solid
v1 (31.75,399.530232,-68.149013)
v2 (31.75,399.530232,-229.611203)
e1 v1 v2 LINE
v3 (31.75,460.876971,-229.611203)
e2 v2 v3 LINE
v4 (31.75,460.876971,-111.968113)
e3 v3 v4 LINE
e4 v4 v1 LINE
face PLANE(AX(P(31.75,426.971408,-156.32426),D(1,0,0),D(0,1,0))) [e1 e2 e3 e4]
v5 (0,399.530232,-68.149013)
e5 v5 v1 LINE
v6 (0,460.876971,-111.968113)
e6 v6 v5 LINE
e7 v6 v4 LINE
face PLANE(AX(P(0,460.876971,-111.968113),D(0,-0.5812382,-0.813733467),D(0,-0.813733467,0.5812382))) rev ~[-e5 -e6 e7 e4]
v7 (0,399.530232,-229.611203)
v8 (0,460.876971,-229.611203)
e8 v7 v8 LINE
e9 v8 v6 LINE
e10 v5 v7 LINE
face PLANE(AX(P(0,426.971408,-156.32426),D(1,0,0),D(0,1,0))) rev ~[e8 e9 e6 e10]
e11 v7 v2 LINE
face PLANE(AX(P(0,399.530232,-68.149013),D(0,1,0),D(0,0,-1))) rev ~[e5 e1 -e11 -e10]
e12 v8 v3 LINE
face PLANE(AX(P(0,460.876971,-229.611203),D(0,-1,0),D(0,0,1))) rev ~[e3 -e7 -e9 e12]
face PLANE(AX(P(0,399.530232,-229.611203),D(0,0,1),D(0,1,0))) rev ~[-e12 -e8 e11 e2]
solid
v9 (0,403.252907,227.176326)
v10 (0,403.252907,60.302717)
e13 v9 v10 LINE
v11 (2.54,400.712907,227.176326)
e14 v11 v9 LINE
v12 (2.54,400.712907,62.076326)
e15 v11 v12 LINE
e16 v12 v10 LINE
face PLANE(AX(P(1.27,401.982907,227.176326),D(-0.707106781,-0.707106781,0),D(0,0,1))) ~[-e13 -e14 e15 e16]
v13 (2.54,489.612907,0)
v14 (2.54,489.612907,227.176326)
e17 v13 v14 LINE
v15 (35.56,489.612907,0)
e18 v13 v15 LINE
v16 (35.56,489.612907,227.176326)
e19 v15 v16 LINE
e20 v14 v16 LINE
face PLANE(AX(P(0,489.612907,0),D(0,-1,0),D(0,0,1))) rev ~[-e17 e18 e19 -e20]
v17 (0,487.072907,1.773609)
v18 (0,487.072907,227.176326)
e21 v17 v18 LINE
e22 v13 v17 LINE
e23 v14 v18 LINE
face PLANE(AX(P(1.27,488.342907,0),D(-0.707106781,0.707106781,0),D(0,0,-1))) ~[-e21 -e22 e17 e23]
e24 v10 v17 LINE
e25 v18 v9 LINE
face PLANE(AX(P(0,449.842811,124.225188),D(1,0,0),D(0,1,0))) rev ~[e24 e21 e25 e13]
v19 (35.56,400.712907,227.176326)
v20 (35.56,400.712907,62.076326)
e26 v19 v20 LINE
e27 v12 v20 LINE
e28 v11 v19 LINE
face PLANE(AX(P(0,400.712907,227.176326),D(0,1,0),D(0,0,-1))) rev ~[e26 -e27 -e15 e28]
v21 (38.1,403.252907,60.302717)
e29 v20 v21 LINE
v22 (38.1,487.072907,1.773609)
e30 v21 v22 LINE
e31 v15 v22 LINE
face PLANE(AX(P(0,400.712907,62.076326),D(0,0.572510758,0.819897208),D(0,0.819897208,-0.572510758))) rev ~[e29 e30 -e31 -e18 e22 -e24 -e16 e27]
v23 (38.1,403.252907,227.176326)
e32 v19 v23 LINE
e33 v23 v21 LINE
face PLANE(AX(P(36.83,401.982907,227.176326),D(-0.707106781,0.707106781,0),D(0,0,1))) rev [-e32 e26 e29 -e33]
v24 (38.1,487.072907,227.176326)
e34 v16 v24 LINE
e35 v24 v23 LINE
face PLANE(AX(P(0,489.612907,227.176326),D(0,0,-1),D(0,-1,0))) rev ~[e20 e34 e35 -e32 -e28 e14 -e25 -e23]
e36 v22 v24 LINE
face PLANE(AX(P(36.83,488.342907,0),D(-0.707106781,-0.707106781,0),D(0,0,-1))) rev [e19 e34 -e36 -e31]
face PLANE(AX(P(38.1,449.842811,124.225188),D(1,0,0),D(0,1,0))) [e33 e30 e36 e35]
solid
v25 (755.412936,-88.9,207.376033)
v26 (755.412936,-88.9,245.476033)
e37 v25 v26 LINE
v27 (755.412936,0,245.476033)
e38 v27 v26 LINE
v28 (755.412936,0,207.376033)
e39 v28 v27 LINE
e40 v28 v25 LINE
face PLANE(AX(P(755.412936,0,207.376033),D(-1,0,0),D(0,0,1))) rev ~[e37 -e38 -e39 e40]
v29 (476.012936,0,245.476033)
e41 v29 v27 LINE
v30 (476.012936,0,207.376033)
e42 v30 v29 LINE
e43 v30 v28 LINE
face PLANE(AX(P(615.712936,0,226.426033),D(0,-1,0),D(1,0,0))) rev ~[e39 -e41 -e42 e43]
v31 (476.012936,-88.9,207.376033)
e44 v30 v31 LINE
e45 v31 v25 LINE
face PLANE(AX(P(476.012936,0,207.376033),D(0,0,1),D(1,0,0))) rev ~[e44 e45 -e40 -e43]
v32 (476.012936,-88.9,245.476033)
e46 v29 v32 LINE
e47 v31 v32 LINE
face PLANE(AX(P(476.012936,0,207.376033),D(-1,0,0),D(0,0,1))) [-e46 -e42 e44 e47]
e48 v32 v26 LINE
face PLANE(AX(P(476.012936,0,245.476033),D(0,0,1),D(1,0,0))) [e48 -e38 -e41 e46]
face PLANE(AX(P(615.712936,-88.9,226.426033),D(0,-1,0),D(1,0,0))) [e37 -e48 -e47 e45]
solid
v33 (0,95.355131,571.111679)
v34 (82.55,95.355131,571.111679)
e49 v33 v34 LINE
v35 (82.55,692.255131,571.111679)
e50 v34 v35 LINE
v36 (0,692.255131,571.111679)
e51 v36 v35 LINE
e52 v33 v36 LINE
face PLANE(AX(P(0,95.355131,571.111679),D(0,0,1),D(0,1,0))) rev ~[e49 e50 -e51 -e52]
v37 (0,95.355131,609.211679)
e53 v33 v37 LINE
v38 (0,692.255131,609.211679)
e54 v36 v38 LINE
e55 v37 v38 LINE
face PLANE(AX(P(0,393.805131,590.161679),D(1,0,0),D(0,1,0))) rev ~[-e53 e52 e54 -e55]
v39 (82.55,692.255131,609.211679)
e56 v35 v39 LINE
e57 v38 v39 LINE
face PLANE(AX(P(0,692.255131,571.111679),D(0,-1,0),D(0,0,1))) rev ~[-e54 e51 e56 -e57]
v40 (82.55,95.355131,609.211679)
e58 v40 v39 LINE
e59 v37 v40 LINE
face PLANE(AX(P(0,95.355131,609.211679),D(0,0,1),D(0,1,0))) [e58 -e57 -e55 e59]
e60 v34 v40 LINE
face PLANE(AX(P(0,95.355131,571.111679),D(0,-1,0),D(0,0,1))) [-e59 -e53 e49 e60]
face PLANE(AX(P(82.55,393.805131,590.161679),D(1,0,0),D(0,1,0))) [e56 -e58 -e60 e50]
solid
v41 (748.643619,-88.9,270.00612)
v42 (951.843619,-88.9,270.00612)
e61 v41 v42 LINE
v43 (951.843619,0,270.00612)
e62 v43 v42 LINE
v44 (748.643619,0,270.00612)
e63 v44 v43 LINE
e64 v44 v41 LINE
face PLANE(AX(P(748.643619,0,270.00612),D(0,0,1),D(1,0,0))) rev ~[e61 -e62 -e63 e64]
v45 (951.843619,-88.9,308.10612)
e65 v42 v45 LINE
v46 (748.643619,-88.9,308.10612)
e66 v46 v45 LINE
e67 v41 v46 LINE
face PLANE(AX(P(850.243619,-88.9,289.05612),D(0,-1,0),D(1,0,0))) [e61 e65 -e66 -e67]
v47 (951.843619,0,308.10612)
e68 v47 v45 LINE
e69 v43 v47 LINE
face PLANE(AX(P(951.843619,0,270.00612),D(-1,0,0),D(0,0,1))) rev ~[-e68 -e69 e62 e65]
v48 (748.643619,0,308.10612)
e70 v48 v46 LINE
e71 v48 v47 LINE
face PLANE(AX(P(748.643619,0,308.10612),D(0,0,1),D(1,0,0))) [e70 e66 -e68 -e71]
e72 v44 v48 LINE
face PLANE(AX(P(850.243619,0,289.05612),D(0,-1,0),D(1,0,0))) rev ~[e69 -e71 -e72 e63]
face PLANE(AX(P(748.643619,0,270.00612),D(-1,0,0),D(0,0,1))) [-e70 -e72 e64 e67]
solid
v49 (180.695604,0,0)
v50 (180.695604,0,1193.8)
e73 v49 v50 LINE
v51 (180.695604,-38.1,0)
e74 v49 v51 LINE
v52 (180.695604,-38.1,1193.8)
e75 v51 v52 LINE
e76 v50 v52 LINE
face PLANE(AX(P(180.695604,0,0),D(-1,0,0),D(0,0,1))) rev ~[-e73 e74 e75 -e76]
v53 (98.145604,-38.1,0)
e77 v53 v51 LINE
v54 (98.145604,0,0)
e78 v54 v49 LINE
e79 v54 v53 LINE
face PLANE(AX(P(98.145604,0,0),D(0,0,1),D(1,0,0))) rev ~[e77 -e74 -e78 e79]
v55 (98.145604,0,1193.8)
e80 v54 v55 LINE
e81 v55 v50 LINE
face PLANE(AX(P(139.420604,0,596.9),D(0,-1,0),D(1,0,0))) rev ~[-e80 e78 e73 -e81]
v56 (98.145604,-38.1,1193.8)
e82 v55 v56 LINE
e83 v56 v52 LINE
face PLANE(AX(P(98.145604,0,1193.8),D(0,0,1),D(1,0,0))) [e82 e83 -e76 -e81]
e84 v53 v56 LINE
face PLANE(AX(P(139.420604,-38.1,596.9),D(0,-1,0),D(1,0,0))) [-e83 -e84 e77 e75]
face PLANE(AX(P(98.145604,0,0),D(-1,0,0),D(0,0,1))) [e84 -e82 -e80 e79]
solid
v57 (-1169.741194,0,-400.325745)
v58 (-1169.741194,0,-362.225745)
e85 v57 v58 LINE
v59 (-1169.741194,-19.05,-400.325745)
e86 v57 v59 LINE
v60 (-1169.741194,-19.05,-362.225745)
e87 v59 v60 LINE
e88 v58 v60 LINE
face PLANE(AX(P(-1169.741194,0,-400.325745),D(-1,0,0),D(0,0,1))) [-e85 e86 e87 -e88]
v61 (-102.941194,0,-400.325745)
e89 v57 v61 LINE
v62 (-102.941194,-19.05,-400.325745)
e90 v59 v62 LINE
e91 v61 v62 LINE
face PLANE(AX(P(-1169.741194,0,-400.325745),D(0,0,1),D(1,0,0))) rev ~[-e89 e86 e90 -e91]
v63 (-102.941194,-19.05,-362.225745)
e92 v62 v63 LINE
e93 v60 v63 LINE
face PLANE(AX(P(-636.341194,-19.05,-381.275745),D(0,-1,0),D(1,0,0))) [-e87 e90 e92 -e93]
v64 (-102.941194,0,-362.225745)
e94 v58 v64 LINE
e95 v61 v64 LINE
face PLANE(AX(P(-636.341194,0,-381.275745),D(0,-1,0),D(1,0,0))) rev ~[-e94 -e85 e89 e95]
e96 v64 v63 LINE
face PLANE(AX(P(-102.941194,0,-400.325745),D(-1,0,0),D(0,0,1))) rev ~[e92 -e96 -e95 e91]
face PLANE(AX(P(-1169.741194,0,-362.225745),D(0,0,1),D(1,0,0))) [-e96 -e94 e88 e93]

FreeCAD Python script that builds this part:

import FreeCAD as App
import Part
import Sketcher

V = App.Vector
Q = App.Units.Quantity


def edges_at(feature, points):
    """Names of the edges that pass closest to the given points."""
    edges = feature.Shape.Edges
    near = lambda p: min(range(len(edges)), key=lambda i: edges[i].distToShape(Part.Vertex(*p))[0])
    return sorted({f"Edge{near(p) + 1}" for p in points})


def add_polygon(sketch, points):
    """Adds a closed chain of lines whose ends are joined by coincident constraints."""
    first, n = sketch.GeometryCount, len(points)
    for a, b in zip(points, points[1:] + points[:1]):
        sketch.addGeometry(Part.LineSegment(App.Vector(*a, 0), App.Vector(*b, 0)), False)
    for i in range(n):
        sketch.addConstraint(Sketcher.Constraint("Coincident", first + i, 2, first + (i + 1) % n, 1))

doc = App.newDocument("Part")
body = doc.addObject("PartDesign::Body", "Body")

# Sketch on XZ plane
sketch1 = doc.addObject("Sketcher::SketchObject", "Sketch")
body.addObject(sketch1)
sketch1.AttachmentSupport = (doc.XZ_Plane, [""])
sketch1.MapMode = "FlatFace"
add_polygon(sketch1, [(0, 254), (0, 0), (88.9, 0), (88.9, 254)])  # lines 0-3
sketch1.addConstraint(Sketcher.Constraint("Vertical", 0))
sketch1.addConstraint(Sketcher.Constraint("Horizontal", 1))
sketch1.addConstraint(Sketcher.Constraint("Vertical", 2))
sketch1.addConstraint(Sketcher.Constraint("Horizontal", 3))
sketch1.addConstraint(Sketcher.Constraint("Coincident", 0, 2, -1, 1))
sketch1.addConstraint(Sketcher.Constraint("DistanceY", 0, 2, 0, 1, Q("10 in")))
sketch1.addConstraint(Sketcher.Constraint("DistanceX", 1, 1, 1, 2, Q("3.5 in")))
pad1 = doc.addObject("PartDesign::Pad", "Pad")
body.addObject(pad1)
pad1.Profile = sketch1
pad1.Length = Q("1.5 in")
doc.recompute()

fillet = doc.addObject("PartDesign::Fillet", "Fillet")
body.addObject(fillet)
fillet.Base = (pad1, edges_at(pad1, [
    (0, 0, 127),
    (0, -38.1, 127),
    (88.9, -38.1, 127),
    (88.9, 0, 127),
]))
fillet.Radius = Q("0.1 in")
body2 = doc.addObject("PartDesign::Body", "Body001")

# Sketch on XZ plane
sketch2 = doc.addObject("Sketcher::SketchObject", "Sketch001")
body2.addObject(sketch2)
sketch2.AttachmentSupport = (doc.getObject("XZ_Plane001"), [""])
sketch2.MapMode = "FlatFace"
add_polygon(sketch2, [(98.145604, 1193.8), (98.145604, 0), (180.695604, 0), (180.695604, 1193.8)])  # lines 0-3
sketch2.addConstraint(Sketcher.Constraint("Vertical", 0))
sketch2.addConstraint(Sketcher.Constraint("Horizontal", 1))
sketch2.addConstraint(Sketcher.Constraint("Vertical", 2))
sketch2.addConstraint(Sketcher.Constraint("Horizontal", 3))
sketch2.addConstraint(Sketcher.Constraint("PointOnObject", 0, 2, -1))
sketch2.addConstraint(Sketcher.Constraint("DistanceY", 0, 2, 0, 1, Q("47 in")))
sketch2.addConstraint(Sketcher.Constraint("DistanceX", 1, 1, 1, 2, Q("3.25 in")))
sketch2.addConstraint(Sketcher.Constraint("DistanceX", -1, 1, 0, 2, Q("3.8640002 in")))
pad2 = doc.addObject("PartDesign::Pad", "Pad001")
body2.addObject(pad2)
pad2.Profile = sketch2
pad2.Length = Q("1.5 in")
body3 = doc.addObject("PartDesign::Body", "Body002")

# Sketch on YZ plane
sketch3 = doc.addObject("Sketcher::SketchObject", "Sketch002")
body3.addObject(sketch3)
sketch3.AttachmentSupport = (doc.getObject("YZ_Plane002"), [""])
sketch3.MapMode = "FlatFace"
add_polygon(sketch3, [(459.739979, 298.644233), (421.639979, 298.644233), (421.639979, 82.744233), (459.739979, 44.644233)])  # lines 0-3
sketch3.addConstraint(Sketcher.Constraint("Horizontal", 0))
sketch3.addConstraint(Sketcher.Constraint("Vertical", 1))
sketch3.addConstraint(Sketcher.Constraint("Vertical", 3))
sketch3.addConstraint(Sketcher.Constraint("DistanceY", 3, 1, 3, 2, Q("10 in")))
sketch3.addConstraint(Sketcher.Constraint("DistanceX", 0, 2, 0, 1, Q("1.5 in")))
sketch3.addConstraint(Sketcher.Constraint("DistanceY", 1, 2, 1, 1, Q("8.5 in")))
sketch3.addConstraint(Sketcher.Constraint("DistanceX", -1, 1, 0, 2, Q("421.639979 mm")))
sketch3.addConstraint(Sketcher.Constraint("DistanceY", -1, 1, 0, 2, Q("298.644233 mm")))
pad3 = doc.addObject("PartDesign::Pad", "Pad002")
body3.addObject(pad3)
pad3.Profile = sketch3
pad3.Length = Q("3.5 in")
doc.recompute()

fillet2 = doc.addObject("PartDesign::Fillet", "Fillet001")
body3.addObject(fillet2)
fillet2.Base = (pad3, edges_at(pad3, [
    (88.9, 421.64, 190.694),
    (88.9, 459.74, 171.644),
    (0, 421.64, 190.694),
    (0, 459.74, 171.644),
]))
fillet2.Radius = Q("0.1 in")
body4 = doc.addObject("PartDesign::Body", "Body003")

# Sketch on YZ plane
sketch4 = doc.addObject("Sketcher::SketchObject", "Sketch003")
body4.addObject(sketch4)
sketch4.AttachmentSupport = (doc.getObject("YZ_Plane003"), [""])
sketch4.MapMode = "FlatFace"
add_polygon(sketch4, [(427.989934, -1.270004), (427.989934, -255.270004), (466.089934, -255.270004), (466.089934, -39.370004)])  # lines 0-3
sketch4.addConstraint(Sketcher.Constraint("Vertical", 0))
sketch4.addConstraint(Sketcher.Constraint("Horizontal", 1))
sketch4.addConstraint(Sketcher.Constraint("Vertical", 2))
sketch4.addConstraint(Sketcher.Constraint("DistanceY", 0, 2, 0, 1, Q("10 in")))
sketch4.addConstraint(Sketcher.Constraint("DistanceX", 1, 1, 1, 2, Q("1.5 in")))
sketch4.addConstraint(Sketcher.Constraint("DistanceY", 2, 1, 2, 2, Q("8.5 in")))
sketch4.addConstraint(Sketcher.Constraint("DistanceY", 0, 2, -1, 1, Q("10.0500002 in")))
sketch4.addConstraint(Sketcher.Constraint("DistanceX", -1, 1, 0, 2, Q("427.989934 mm")))
pad4 = doc.addObject("PartDesign::Pad", "Pad003")
body4.addObject(pad4)
pad4.Profile = sketch4
pad4.Length = Q("3.5 in")
doc.recompute()

fillet3 = doc.addObject("PartDesign::Fillet", "Fillet002")
body4.addObject(fillet3)
fillet3.Base = (pad4, edges_at(pad4, [
    (0, 427.99, -128.27),
    (88.9, 427.99, -128.27),
    (88.9, 466.09, -147.32),
    (0, 466.09, -147.32),
]))
fillet3.Radius = Q("0.1 in")
body5 = doc.addObject("PartDesign::Body", "Body004")

# Sketch on YZ plane
sketch5 = doc.addObject("Sketcher::SketchObject", "Sketch004")
body5.addObject(sketch5)
sketch5.AttachmentSupport = (doc.getObject("YZ_Plane004"), [""])
sketch5.MapMode = "FlatFace"
add_polygon(sketch5, [(489.612907, 0), (489.612907, 227.176326), (400.712907, 227.176326), (400.712907, 62.076326)])  # lines 0-3
sketch5.addConstraint(Sketcher.Constraint("Vertical", 0))
sketch5.addConstraint(Sketcher.Constraint("Horizontal", 1))
sketch5.addConstraint(Sketcher.Constraint("Vertical", 2))
sketch5.addConstraint(Sketcher.Constraint("PointOnObject", 3, 2, -1))
sketch5.addConstraint(Sketcher.Constraint("DistanceX", 1, 2, 1, 1, Q("3.5 in")))
sketch5.addConstraint(Sketcher.Constraint("DistanceY", 2, 2, 2, 1, Q("6.5 in")))
sketch5.addConstraint(Sketcher.Constraint("DistanceY", 0, 1, 0, 2, Q("227.176326 mm")))
sketch5.addConstraint(Sketcher.Constraint("DistanceX", -1, 1, 0, 2, Q("489.612907 mm")))
pad5 = doc.addObject("PartDesign::Pad", "Pad004")
body5.addObject(pad5)
pad5.Profile = sketch5
pad5.Length = Q("1.5 in")
doc.recompute()

chamfer = doc.addObject("PartDesign::Chamfer", "Chamfer")
body5.addObject(chamfer)
chamfer.Base = (pad5, edges_at(pad5, [
    (38.1, 400.713, 144.626),
    (38.1, 489.613, 113.588),
    (0, 489.613, 113.588),
    (0, 400.713, 144.626),
]))
chamfer.Size = Q("0.1 in")
body6 = doc.addObject("PartDesign::Body", "Body005")

# Sketch on YZ plane
sketch6 = doc.addObject("Sketcher::SketchObject", "Sketch005")
body6.addObject(sketch6)
sketch6.AttachmentSupport = (doc.getObject("YZ_Plane005"), [""])
sketch6.MapMode = "FlatFace"
add_polygon(sketch6, [(374.346435, 712.469995), (374.346435, 547.369957), (463.246435, 547.369957), (463.246435, 775.969957)])  # lines 0-3
sketch6.addConstraint(Sketcher.Constraint("Vertical", 0))
sketch6.addConstraint(Sketcher.Constraint("Horizontal", 1))
sketch6.addConstraint(Sketcher.Constraint("Vertical", 2))
sketch6.addConstraint(Sketcher.Constraint("DistanceY", 2, 1, 2, 2, Q("9 in")))
sketch6.addConstraint(Sketcher.Constraint("DistanceX", 1, 1, 1, 2, Q("3.5 in")))
sketch6.addConstraint(Sketcher.Constraint("DistanceY", -1, 1, 3, 2, Q("28.0499998 in")))
sketch6.addConstraint(Sketcher.Constraint("DistanceY", 0, 2, 0, 1, Q("165.100038 mm")))
sketch6.addConstraint(Sketcher.Constraint("DistanceX", -1, 1, 0, 2, Q("374.346435 mm")))
pad6 = doc.addObject("PartDesign::Pad", "Pad005")
body6.addObject(pad6)
pad6.Profile = sketch6
pad6.Length = Q("1.5 in")
doc.recompute()

chamfer2 = doc.addObject("PartDesign::Chamfer", "Chamfer001")
body6.addObject(chamfer2)
chamfer2.Base = (pad6, edges_at(pad6, [
    (0, 374.346, 629.92),
    (38.1, 374.346, 629.92),
    (38.1, 463.246, 661.67),
    (0, 463.246, 661.67),
]))
chamfer2.Size = Q("0.1 in")
body7 = doc.addObject("PartDesign::Body", "Body006")

# Sketch on YZ plane
sketch7 = doc.addObject("Sketcher::SketchObject", "Sketch006")
body7.addObject(sketch7)
sketch7.AttachmentSupport = (doc.getObject("YZ_Plane006"), [""])
sketch7.MapMode = "FlatFace"
add_polygon(sketch7, [(460.876971, -111.968113), (399.530232, -68.149013), (399.530232, -229.611203), (460.876971, -229.611203)])  # lines 0-3
sketch7.addConstraint(Sketcher.Constraint("Vertical", 1))
sketch7.addConstraint(Sketcher.Constraint("Horizontal", 2))
sketch7.addConstraint(Sketcher.Constraint("Vertical", 3))
sketch7.addConstraint(Sketcher.Constraint("DistanceX", 2, 1, 2, 2, Q("61.346739 mm")))
sketch7.addConstraint(Sketcher.Constraint("DistanceY", 1, 2, 1, 1, Q("161.46219 mm")))
sketch7.addConstraint(Sketcher.Constraint("DistanceY", 3, 1, 3, 2, Q("117.64309 mm")))
sketch7.addConstraint(Sketcher.Constraint("DistanceX", -1, 1, 0, 2, Q("399.530232 mm")))
sketch7.addConstraint(Sketcher.Constraint("DistanceY", 0, 2, -1, 1, Q("68.149013 mm")))
pad7 = doc.addObject("PartDesign::Pad", "Pad006")
body7.addObject(pad7)
pad7.Profile = sketch7
pad7.Length = Q("1.25 in")
body8 = doc.addObject("PartDesign::Body", "Body007")

# Sketch on YZ plane
sketch8 = doc.addObject("Sketcher::SketchObject", "Sketch007")
body8.addObject(sketch8)
sketch8.AttachmentSupport = (doc.getObject("YZ_Plane007"), [""])
sketch8.MapMode = "FlatFace"
add_polygon(sketch8, [(95.355131, 609.211679), (95.355131, 571.111679), (692.255131, 571.111679), (692.255131, 609.211679)])  # lines 0-3
sketch8.addConstraint(Sketcher.Constraint("Vertical", 0))
sketch8.addConstraint(Sketcher.Constraint("Horizontal", 1))
sketch8.addConstraint(Sketcher.Constraint("Vertical", 2))
sketch8.addConstraint(Sketcher.Constraint("Horizontal", 3))
sketch8.addConstraint(Sketcher.Constraint("DistanceX", 1, 1, 1, 2, Q("23.5 in")))
sketch8.addConstraint(Sketcher.Constraint("DistanceY", 0, 2, 0, 1, Q("1.5 in")))
sketch8.addConstraint(Sketcher.Constraint("DistanceX", -1, 1, 0, 2, Q("95.355131 mm")))
sketch8.addConstraint(Sketcher.Constraint("DistanceY", -1, 1, 0, 2, Q("571.111679 mm")))
pad8 = doc.addObject("PartDesign::Pad", "Pad007")
body8.addObject(pad8)
pad8.Profile = sketch8
pad8.Length = Q("3.25 in")
body9 = doc.addObject("PartDesign::Body", "Body008")

# Sketch on XZ plane
sketch9 = doc.addObject("Sketcher::SketchObject", "Sketch008")
body9.addObject(sketch9)
sketch9.AttachmentSupport = (doc.getObject("XZ_Plane008"), [""])
sketch9.MapMode = "FlatFace"
add_polygon(sketch9, [(476.012936, 245.476033), (476.012936, 207.376033), (755.412936, 207.376033), (755.412936, 245.476033)])  # lines 0-3
sketch9.addConstraint(Sketcher.Constraint("Vertical", 0))
sketch9.addConstraint(Sketcher.Constraint("Horizontal", 1))
sketch9.addConstraint(Sketcher.Constraint("Vertical", 2))
sketch9.addConstraint(Sketcher.Constraint("Horizontal", 3))
sketch9.addConstraint(Sketcher.Constraint("DistanceX", 1, 1, 1, 2, Q("11 in")))
sketch9.addConstraint(Sketcher.Constraint("DistanceY", 0, 2, 0, 1, Q("1.5 in")))
sketch9.addConstraint(Sketcher.Constraint("DistanceX", -1, 1, 0, 2, Q("476.012936 mm")))
sketch9.addConstraint(Sketcher.Constraint("DistanceY", -1, 1, 0, 2, Q("207.376033 mm")))
pad9 = doc.addObject("PartDesign::Pad", "Pad008")
body9.addObject(pad9)
pad9.Profile = sketch9
pad9.Length = Q("3.5 in")
body10 = doc.addObject("PartDesign::Body", "Body009")

# Sketch on XZ plane
sketch10 = doc.addObject("Sketcher::SketchObject", "Sketch009")
body10.addObject(sketch10)
sketch10.AttachmentSupport = (doc.getObject("XZ_Plane009"), [""])
sketch10.MapMode = "FlatFace"
add_polygon(sketch10, [(748.643619, 308.10612), (748.643619, 270.00612), (951.843619, 270.00612), (951.843619, 308.10612)])  # lines 0-3
sketch10.addConstraint(Sketcher.Constraint("Vertical", 0))
sketch10.addConstraint(Sketcher.Constraint("Horizontal", 1))
sketch10.addConstraint(Sketcher.Constraint("Vertical", 2))
sketch10.addConstraint(Sketcher.Constraint("Horizontal", 3))
sketch10.addConstraint(Sketcher.Constraint("DistanceX", 1, 1, 1, 2, Q("8 in")))
sketch10.addConstraint(Sketcher.Constraint("DistanceY", 0, 2, 0, 1, Q("1.5 in")))
sketch10.addConstraint(Sketcher.Constraint("DistanceX", -1, 1, 0, 2, Q("748.643619 mm")))
sketch10.addConstraint(Sketcher.Constraint("DistanceY", -1, 1, 0, 2, Q("270.00612 mm")))
pad10 = doc.addObject("PartDesign::Pad", "Pad009")
body10.addObject(pad10)
pad10.Profile = sketch10
pad10.Length = Q("3.5 in")
body11 = doc.addObject("PartDesign::Body", "Body010")

# Sketch on XZ plane
sketch11 = doc.addObject("Sketcher::SketchObject", "Sketch010")
body11.addObject(sketch11)
sketch11.AttachmentSupport = (doc.getObject("XZ_Plane010"), [""])
sketch11.MapMode = "FlatFace"
add_polygon(sketch11, [(-1169.741194, -362.225745), (-1169.741194, -400.325745), (-102.941194, -400.325745), (-102.941194, -362.225745)])  # lines 0-3
sketch11.addConstraint(Sketcher.Constraint("Vertical", 0))
sketch11.addConstraint(Sketcher.Constraint("Horizontal", 1))
sketch11.addConstraint(Sketcher.Constraint("Vertical", 2))
sketch11.addConstraint(Sketcher.Constraint("Horizontal", 3))
sketch11.addConstraint(Sketcher.Constraint("DistanceX", 1, 1, 1, 2, Q("42 in")))
sketch11.addConstraint(Sketcher.Constraint("DistanceY", 0, 2, 0, 1, Q("1.5 in")))
sketch11.addConstraint(Sketcher.Constraint("DistanceX", 0, 2, -1, 1, Q("1169.741194 mm")))
sketch11.addConstraint(Sketcher.Constraint("DistanceY", 0, 2, -1, 1, Q("400.325745 mm")))
pad11 = doc.addObject("PartDesign::Pad", "Pad010")
body11.addObject(pad11)
pad11.Profile = sketch11
pad11.Length = Q("0.75 in")
body.Visibility = False
body3.Visibility = False
body4.Visibility = False
body6.Visibility = False

doc.recompute()
